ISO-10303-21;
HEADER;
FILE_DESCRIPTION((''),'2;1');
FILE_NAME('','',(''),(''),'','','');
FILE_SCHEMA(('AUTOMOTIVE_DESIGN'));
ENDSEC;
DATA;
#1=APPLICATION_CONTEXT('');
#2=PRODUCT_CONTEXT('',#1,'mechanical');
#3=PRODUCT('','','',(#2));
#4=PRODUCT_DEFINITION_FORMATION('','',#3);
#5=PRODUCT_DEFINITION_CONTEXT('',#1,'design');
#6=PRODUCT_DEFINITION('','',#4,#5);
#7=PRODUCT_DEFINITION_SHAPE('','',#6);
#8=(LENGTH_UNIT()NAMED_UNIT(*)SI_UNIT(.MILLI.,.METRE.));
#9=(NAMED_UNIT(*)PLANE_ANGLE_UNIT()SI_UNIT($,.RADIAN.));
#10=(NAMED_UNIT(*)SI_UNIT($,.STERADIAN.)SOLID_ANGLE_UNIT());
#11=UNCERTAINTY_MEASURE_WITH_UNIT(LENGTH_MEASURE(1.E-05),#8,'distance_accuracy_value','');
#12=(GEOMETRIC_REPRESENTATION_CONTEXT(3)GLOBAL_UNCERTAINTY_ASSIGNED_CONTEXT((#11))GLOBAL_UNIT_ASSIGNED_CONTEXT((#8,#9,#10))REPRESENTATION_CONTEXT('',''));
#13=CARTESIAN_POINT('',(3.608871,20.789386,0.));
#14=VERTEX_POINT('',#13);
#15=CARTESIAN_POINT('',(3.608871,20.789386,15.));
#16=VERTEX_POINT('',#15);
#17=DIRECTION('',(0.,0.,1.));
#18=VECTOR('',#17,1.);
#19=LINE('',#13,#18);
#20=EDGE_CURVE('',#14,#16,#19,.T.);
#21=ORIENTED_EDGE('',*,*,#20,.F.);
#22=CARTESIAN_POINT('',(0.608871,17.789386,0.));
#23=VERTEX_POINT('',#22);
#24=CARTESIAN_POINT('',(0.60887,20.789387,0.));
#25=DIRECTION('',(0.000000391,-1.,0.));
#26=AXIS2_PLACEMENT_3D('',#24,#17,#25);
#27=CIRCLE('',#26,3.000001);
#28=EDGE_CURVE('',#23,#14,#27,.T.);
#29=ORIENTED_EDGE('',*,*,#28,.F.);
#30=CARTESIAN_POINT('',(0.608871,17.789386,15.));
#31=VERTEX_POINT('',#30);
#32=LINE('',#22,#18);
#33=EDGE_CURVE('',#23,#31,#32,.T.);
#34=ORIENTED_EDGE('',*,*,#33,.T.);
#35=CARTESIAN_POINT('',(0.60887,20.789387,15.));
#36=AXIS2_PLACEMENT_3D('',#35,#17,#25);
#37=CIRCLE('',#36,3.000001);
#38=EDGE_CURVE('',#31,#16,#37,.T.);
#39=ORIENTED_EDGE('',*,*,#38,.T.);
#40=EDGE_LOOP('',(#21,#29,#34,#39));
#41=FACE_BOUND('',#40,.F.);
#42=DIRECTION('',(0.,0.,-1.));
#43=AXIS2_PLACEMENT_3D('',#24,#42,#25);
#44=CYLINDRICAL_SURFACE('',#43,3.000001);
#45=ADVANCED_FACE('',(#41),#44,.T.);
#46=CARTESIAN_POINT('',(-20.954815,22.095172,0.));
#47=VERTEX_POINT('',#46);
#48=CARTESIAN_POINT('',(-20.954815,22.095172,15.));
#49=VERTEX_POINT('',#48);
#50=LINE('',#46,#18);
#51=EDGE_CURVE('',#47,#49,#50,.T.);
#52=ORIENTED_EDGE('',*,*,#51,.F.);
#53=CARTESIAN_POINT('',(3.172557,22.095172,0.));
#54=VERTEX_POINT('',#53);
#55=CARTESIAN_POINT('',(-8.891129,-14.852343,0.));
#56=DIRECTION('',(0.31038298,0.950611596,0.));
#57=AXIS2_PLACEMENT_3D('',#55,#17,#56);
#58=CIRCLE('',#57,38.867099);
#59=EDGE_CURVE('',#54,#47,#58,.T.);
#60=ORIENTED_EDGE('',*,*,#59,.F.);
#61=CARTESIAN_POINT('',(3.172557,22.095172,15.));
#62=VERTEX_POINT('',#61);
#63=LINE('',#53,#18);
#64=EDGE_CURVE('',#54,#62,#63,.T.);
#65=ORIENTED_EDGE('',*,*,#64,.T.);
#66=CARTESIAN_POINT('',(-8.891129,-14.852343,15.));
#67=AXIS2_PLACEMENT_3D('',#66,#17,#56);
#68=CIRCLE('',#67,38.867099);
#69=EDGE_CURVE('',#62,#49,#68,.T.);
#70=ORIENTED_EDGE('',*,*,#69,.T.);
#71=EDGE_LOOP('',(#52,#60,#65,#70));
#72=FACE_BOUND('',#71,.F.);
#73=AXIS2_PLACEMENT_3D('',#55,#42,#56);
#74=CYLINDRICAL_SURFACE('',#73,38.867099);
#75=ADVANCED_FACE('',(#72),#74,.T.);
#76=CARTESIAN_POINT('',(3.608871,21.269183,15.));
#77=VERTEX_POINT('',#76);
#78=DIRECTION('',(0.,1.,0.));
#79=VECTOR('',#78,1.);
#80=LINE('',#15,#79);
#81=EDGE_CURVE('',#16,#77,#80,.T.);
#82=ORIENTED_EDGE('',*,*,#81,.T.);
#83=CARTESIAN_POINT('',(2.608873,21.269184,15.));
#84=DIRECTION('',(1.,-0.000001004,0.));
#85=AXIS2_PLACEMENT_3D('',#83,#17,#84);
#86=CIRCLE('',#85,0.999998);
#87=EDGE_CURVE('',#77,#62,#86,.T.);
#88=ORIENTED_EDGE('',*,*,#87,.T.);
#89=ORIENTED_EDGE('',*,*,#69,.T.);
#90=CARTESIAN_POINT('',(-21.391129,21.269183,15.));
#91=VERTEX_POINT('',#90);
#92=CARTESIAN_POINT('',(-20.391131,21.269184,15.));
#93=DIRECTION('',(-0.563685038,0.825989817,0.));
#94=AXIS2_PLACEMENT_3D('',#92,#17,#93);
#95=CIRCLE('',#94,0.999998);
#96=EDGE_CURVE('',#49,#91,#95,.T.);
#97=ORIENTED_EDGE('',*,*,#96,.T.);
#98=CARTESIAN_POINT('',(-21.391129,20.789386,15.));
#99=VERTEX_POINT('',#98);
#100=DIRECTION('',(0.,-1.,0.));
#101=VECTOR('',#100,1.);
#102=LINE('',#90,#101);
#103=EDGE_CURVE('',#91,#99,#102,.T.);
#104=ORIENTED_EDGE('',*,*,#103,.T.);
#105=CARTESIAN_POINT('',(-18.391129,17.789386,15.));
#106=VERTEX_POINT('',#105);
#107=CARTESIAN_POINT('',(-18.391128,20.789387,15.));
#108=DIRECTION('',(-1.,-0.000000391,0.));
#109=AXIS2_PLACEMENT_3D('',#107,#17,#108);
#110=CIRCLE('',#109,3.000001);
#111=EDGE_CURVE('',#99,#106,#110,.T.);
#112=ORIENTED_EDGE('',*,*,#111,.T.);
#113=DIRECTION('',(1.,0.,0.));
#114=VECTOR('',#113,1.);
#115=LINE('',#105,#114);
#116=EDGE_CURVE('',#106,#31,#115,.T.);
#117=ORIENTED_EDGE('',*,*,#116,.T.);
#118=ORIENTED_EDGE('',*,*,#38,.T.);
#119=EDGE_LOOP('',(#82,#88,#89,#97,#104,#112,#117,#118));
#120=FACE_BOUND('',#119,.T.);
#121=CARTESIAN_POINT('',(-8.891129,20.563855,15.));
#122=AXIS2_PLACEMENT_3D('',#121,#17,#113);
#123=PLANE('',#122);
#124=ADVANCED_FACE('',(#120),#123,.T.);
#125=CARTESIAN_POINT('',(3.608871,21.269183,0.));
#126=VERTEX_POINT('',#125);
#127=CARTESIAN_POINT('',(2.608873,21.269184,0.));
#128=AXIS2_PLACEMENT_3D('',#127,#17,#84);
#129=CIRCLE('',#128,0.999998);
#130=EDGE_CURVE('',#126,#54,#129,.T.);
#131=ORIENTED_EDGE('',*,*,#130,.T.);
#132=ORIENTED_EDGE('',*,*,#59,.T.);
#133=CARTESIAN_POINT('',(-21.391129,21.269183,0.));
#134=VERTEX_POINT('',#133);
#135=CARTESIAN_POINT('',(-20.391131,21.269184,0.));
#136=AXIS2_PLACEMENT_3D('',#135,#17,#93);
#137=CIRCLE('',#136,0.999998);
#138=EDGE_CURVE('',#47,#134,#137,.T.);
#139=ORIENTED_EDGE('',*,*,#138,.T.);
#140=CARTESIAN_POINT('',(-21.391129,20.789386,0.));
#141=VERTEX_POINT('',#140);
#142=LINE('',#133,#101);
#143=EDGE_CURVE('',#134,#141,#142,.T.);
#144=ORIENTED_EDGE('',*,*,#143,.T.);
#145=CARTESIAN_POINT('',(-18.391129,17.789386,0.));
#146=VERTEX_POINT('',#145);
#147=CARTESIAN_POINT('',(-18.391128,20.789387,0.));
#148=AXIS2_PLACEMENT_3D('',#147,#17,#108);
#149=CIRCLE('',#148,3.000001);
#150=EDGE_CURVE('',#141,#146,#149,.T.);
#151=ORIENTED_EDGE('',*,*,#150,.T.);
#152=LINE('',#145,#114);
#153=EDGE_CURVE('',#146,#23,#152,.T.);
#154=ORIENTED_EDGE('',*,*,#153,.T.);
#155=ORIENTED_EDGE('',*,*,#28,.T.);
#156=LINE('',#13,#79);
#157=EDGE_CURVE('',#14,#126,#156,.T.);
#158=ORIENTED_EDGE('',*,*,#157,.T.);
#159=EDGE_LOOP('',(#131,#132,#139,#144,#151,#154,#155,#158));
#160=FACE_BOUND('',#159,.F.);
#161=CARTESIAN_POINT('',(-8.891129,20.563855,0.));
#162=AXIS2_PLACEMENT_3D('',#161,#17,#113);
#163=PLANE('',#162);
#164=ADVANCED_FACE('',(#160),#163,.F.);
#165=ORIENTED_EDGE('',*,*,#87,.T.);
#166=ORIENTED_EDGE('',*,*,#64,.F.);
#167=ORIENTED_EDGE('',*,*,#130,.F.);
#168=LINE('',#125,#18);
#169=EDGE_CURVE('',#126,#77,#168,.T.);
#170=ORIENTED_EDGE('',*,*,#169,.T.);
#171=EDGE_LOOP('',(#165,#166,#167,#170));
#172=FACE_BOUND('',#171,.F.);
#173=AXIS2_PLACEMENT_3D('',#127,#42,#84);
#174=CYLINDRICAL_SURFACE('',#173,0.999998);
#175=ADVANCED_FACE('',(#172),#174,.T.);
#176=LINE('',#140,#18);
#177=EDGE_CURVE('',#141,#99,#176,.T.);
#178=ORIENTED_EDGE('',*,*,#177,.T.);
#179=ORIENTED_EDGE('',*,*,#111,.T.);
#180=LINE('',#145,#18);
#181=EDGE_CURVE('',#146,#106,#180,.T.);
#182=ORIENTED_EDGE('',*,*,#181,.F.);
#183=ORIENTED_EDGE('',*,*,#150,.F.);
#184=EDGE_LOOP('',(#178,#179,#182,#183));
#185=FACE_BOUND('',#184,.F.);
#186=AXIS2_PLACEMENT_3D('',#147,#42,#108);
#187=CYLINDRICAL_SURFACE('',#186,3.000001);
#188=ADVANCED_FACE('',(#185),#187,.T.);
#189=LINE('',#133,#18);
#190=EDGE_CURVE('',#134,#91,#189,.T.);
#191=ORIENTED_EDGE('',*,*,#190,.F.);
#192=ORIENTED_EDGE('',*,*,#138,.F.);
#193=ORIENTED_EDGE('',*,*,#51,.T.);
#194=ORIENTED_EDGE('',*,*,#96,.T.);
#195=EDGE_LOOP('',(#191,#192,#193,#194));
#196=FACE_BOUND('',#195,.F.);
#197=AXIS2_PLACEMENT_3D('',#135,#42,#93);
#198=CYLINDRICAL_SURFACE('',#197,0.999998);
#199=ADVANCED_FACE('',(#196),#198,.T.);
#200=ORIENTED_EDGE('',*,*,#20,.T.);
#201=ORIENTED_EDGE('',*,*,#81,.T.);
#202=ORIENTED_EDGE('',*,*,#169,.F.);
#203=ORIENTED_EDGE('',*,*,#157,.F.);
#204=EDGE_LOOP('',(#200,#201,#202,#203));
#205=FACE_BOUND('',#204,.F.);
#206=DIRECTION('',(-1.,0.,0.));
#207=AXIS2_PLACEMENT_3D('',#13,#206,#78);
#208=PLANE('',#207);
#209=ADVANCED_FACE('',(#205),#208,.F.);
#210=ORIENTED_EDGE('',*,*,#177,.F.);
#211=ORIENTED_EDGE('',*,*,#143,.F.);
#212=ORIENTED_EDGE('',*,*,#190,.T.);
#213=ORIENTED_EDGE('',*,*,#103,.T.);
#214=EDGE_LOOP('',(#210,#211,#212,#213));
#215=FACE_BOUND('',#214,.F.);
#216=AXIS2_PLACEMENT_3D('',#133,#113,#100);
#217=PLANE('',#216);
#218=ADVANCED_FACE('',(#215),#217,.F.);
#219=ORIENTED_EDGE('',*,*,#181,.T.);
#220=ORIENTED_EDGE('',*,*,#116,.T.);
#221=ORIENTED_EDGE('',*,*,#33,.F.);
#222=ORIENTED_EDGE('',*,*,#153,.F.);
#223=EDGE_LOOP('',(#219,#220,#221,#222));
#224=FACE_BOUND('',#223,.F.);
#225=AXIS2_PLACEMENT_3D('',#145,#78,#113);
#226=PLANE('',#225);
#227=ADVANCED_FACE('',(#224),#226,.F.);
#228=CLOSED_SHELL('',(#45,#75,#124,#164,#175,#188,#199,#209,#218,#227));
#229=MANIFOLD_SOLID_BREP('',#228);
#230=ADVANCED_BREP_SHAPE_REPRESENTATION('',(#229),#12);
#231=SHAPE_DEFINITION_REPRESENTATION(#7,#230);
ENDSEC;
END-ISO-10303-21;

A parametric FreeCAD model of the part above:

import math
import FreeCAD as App
import Part
import Sketcher
Q = App.Units.Quantity

doc = App.newDocument("Part")
params = doc.addObject("Spreadsheet::Sheet", "Params")
for row, (alias, value) in enumerate([
    ("sketch1_radius", "3.000001 mm"),
    ("sketch1_width", "19 mm"),
    ("pad1_length", "15 mm"),
], start=1):
    params.set(f"A{row}", alias)
    params.set(f"B{row}", "=" + value)
    params.setAlias(f"B{row}", alias)

body = doc.addObject("PartDesign::Body", "Body")

# Sketch on XY plane
sketch1 = body.newObject("Sketcher::SketchObject", "Sketch")
sketch1.AttachmentSupport = (doc.getObject("XY_Plane"), [""])
sketch1.MapMode = "FlatFace"
sketch1.addGeometry(Part.ArcOfCircle(Part.Circle(App.Vector(-18.391128, 20.789387, 0), App.Vector(0, 0, 1), 3.000001), math.radians(-179.999978), math.radians(-90.000022)), False)
sketch1.addGeometry(Part.LineSegment(App.Vector(-18.391129, 17.789386, 0), App.Vector(0.608871, 17.789386, 0)), False)
sketch1.addGeometry(Part.ArcOfCircle(Part.Circle(App.Vector(0.60887, 20.789387, 0), App.Vector(0, 0, 1), 3.000001), math.radians(-89.999978), math.radians(-0.000022)), False)
sketch1.addGeometry(Part.LineSegment(App.Vector(3.608871, 20.789386, 0), App.Vector(3.608871, 21.269183, 0)), False)
sketch1.addGeometry(Part.ArcOfCircle(Part.Circle(App.Vector(2.608873, 21.269184, 0), App.Vector(0, 0, 1), 0.999998), math.radians(-0.000058), math.radians(55.688972)), False)
sketch1.addGeometry(Part.ArcOfCircle(Part.Circle(App.Vector(-8.891129, -14.852343, 0), App.Vector(0, 0, 1), 38.867099), math.radians(71.917688), math.radians(108.082312)), False)
sketch1.addGeometry(Part.ArcOfCircle(Part.Circle(App.Vector(-20.391131, 21.269184, 0), App.Vector(0, 0, 1), 0.999998), math.radians(124.311028), math.radians(180.000058)), False)
sketch1.addGeometry(Part.LineSegment(App.Vector(-21.391129, 21.269183, 0), App.Vector(-21.391129, 20.789386, 0)), False)
sketch1.addConstraint(Sketcher.Constraint("Tangent", 0, 2, 1, 1))
sketch1.addConstraint(Sketcher.Constraint("Tangent", 1, 2, 2, 1))
sketch1.addConstraint(Sketcher.Constraint("Tangent", 2, 2, 3, 1))
sketch1.addConstraint(Sketcher.Constraint("Tangent", 3, 2, 4, 1))
sketch1.addConstraint(Sketcher.Constraint("Coincident", 4, 2, 5, 1))
sketch1.addConstraint(Sketcher.Constraint("Coincident", 5, 2, 6, 1))
sketch1.addConstraint(Sketcher.Constraint("Tangent", 6, 2, 7, 1))
sketch1.addConstraint(Sketcher.Constraint("Tangent", 7, 2, 0, 1))
sketch1.addConstraint(Sketcher.Constraint("Horizontal", 1))
sketch1.addConstraint(Sketcher.Constraint("Vertical", 3))
sketch1.addConstraint(Sketcher.Constraint("Vertical", 7))
sketch1.addConstraint(Sketcher.Constraint("Equal", 0, 2))
sketch1.addConstraint(Sketcher.Constraint("Equal", 4, 6))
sketch1.addConstraint(Sketcher.Constraint("Horizontal", 4, 3, 6, 3))
sketch1.addConstraint(Sketcher.Constraint("Horizontal", 4, 2, 5, 2))
sketch1.addConstraint(Sketcher.Constraint("Radius", 0, Q("3.000001 mm")))
sketch1.addConstraint(Sketcher.Constraint("DistanceX", 1, 1, 1, 2, Q("19 mm")))
sketch1.addConstraint(Sketcher.Constraint("DistanceX", 0, 3, 4, 3, Q("21.000001 mm")))
sketch1.addConstraint(Sketcher.Constraint("Radius", 5, Q("38.867099 mm")))
sketch1.addConstraint(Sketcher.Constraint("DistanceY", 0, 2, 6, 3, Q("3.479798 mm")))
sketch1.addConstraint(Sketcher.Constraint("DistanceX", -1, 1, 2, 3, Q("0.60887 mm")))
sketch1.addConstraint(Sketcher.Constraint("DistanceY", 5, 3, 0, 3, Q("35.64173 mm")))
sketch1.addConstraint(Sketcher.Constraint("DistanceY", -1, 1, 0, 3, Q("20.789387 mm")))
sketch1.setExpression("Constraints[15]", "Params.sketch1_radius")
sketch1.setExpression("Constraints[16]", "Params.sketch1_width")
pad1 = body.newObject("PartDesign::Pad", "Pad")
pad1.Profile = sketch1
pad1.setExpression("Length", "Params.pad1_length")

doc.recompute()
